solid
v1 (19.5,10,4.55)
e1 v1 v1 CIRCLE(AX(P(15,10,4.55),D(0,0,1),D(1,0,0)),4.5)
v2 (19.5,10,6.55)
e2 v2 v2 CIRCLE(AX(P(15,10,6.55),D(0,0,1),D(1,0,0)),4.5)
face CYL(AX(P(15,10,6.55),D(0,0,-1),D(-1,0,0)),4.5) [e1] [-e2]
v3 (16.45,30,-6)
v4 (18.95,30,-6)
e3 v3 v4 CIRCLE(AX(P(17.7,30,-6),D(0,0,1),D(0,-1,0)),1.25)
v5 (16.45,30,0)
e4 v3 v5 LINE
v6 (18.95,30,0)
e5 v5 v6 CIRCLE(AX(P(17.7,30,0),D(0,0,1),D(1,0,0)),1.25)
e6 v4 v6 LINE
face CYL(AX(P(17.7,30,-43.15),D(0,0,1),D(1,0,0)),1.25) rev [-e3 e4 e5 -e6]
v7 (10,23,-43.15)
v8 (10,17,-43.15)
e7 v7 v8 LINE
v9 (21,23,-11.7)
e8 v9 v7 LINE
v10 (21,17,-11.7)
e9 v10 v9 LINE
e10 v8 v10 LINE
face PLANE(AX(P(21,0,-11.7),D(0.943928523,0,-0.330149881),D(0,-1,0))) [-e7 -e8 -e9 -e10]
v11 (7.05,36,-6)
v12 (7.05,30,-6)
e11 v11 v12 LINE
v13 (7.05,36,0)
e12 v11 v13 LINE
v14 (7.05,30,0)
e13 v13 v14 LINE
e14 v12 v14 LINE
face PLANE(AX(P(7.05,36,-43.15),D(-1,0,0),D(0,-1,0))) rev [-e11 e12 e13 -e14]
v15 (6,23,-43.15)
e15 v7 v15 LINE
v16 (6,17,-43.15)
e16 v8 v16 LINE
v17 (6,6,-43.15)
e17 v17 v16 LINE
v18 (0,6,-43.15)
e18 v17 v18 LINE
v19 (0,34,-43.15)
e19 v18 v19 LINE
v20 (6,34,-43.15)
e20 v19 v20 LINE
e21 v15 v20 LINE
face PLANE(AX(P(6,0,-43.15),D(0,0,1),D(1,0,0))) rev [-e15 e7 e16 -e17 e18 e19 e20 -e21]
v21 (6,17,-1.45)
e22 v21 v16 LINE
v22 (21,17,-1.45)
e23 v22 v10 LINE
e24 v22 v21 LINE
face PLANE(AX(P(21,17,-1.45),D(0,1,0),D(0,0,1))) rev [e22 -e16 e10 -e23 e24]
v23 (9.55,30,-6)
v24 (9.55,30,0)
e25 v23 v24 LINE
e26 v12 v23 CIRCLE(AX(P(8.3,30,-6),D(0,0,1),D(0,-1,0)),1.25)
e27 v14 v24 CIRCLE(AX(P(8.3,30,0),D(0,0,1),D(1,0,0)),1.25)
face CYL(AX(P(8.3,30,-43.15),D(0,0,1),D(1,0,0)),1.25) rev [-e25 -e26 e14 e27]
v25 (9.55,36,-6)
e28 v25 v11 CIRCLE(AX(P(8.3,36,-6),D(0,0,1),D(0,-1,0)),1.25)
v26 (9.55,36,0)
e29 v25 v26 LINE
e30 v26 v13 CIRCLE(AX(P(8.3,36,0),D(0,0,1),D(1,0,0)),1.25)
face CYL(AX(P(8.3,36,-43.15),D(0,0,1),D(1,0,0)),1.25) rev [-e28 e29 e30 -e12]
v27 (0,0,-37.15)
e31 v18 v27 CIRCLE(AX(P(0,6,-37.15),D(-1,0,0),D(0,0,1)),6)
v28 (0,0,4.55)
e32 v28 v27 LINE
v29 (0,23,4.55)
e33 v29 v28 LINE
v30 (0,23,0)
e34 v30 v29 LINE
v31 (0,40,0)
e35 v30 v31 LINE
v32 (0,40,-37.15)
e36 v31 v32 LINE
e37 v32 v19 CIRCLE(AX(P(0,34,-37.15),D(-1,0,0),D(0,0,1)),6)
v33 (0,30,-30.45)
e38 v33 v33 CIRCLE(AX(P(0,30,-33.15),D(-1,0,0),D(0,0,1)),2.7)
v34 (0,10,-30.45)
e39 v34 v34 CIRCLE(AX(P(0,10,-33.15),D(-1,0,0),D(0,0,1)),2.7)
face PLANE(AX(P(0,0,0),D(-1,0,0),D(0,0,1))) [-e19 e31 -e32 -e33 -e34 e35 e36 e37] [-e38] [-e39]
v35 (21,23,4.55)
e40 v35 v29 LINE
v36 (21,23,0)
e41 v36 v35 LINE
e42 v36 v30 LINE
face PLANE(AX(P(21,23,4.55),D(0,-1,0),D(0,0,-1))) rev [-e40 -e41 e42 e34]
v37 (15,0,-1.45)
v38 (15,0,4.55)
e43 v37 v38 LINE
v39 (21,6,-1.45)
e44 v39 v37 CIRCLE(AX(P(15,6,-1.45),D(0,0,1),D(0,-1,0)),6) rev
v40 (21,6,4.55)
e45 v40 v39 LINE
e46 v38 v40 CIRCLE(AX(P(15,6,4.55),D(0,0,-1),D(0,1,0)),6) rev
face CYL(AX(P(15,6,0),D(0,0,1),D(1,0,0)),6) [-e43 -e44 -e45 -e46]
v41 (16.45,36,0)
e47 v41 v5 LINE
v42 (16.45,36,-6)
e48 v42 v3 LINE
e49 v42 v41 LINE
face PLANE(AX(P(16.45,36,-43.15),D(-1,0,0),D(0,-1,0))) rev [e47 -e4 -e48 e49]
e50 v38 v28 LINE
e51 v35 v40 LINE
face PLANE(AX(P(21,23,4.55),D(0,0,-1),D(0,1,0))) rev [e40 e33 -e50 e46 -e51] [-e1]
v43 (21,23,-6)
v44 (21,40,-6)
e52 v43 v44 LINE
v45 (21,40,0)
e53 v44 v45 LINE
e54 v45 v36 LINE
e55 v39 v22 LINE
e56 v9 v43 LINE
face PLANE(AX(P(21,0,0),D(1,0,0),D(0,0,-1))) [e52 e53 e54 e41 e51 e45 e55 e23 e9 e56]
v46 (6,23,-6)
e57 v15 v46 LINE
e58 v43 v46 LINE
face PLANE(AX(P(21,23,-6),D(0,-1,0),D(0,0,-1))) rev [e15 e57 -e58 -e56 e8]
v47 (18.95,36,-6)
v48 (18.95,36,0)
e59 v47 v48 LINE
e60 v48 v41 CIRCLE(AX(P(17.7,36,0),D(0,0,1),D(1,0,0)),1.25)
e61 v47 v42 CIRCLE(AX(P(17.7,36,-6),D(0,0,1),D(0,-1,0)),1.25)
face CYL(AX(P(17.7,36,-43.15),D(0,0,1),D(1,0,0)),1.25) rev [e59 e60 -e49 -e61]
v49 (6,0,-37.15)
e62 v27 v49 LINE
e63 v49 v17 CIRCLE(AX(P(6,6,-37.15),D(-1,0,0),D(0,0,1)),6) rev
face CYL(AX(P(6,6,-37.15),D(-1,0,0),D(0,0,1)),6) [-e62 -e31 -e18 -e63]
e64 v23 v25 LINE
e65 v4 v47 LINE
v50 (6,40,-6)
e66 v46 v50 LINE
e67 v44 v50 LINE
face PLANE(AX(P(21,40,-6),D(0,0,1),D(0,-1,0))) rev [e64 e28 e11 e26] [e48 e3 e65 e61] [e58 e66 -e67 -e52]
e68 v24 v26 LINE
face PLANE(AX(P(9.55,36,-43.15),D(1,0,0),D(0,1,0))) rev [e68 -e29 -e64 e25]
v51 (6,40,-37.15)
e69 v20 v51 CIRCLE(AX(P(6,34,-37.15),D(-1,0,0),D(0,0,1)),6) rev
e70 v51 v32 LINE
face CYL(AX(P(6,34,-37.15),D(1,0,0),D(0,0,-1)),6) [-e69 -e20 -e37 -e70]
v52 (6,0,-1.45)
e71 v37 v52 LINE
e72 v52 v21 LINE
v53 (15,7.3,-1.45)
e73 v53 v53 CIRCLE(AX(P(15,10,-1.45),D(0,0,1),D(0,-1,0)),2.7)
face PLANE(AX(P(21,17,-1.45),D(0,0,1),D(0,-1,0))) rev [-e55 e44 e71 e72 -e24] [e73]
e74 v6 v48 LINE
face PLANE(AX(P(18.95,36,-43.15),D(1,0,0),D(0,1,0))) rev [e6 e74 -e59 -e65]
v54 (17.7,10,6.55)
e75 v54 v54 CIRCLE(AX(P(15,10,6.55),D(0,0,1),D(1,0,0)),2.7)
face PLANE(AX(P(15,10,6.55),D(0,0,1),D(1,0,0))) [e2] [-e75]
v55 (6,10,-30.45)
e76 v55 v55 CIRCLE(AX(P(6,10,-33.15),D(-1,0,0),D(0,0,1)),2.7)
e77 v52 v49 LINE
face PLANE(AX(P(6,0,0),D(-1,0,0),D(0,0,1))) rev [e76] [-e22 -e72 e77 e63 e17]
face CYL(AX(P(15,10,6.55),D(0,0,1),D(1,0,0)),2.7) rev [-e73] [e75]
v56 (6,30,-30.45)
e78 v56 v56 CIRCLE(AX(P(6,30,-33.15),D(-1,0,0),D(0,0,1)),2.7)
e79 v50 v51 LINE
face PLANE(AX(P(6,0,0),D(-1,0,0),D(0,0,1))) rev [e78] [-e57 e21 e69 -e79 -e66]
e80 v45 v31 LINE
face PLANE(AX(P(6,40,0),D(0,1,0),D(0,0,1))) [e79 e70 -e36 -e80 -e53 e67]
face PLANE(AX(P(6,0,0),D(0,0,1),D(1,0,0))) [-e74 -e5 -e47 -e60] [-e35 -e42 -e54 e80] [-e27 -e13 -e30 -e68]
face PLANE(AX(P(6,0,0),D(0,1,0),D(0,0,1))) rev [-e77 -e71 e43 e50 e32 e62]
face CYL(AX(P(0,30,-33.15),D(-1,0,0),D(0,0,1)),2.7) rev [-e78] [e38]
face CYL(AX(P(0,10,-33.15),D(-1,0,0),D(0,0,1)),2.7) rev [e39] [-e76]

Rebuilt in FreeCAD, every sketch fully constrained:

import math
import FreeCAD as App
import Part
import Sketcher


def edges_at(feature, points):
    """Names of the edges that pass closest to the given points."""
    edges = feature.Shape.Edges
    near = lambda p: min(range(len(edges)), key=lambda i: edges[i].distToShape(Part.Vertex(*p))[0])
    return sorted({f"Edge{near(p) + 1}" for p in points})


def add_polygon(sketch, points):
    """Adds a closed chain of lines whose ends are joined by coincident constraints."""
    first, n = sketch.GeometryCount, len(points)
    for a, b in zip(points, points[1:] + points[:1]):
        sketch.addGeometry(Part.LineSegment(App.Vector(*a, 0), App.Vector(*b, 0)), False)
    for i in range(n):
        sketch.addConstraint(Sketcher.Constraint("Coincident", first + i, 2, first + (i + 1) % n, 1))

doc = App.newDocument("Part")
body = doc.addObject("PartDesign::Body", "Body")

# Sketch on YZ plane
sketch1 = body.newObject("Sketcher::SketchObject", "Sketch")
sketch1.AttachmentSupport = (doc.getObject("YZ_Plane"), [""])
sketch1.MapMode = "FlatFace"
add_polygon(sketch1, [(40, 0), (0, 0), (0, -43), (40, -43)])  # lines 0-3
sketch1.addConstraint(Sketcher.Constraint("Horizontal", 0))
sketch1.addConstraint(Sketcher.Constraint("Vertical", 1))
sketch1.addConstraint(Sketcher.Constraint("Horizontal", 2))
sketch1.addConstraint(Sketcher.Constraint("Vertical", 3))
sketch1.addConstraint(Sketcher.Constraint("Coincident", 0, 2, -1, 1))
sketch1.addConstraint(Sketcher.Constraint("DistanceX", 0, 2, 0, 1, 40.0))
sketch1.addConstraint(Sketcher.Constraint("DistanceY", 1, 2, 1, 1, 43.15))
pad1 = body.newObject("PartDesign::Pad", "Pad")
pad1.Profile = sketch1
pad1.Length = 6

# Sketch on YZ plane
sketch2 = body.newObject("Sketcher::SketchObject", "Sketch001")
sketch2.AttachmentSupport = (doc.getObject("YZ_Plane"), [""])
sketch2.MapMode = "FlatFace"
add_polygon(sketch2, [(23, 0), (23, 4.5), (0, 4.5), (0, -1.4), (17, -1.4), (17, -43.1), (23, -43.1), (23, -6), (40, -6), (40, 0)])  # lines 0-9
sketch2.addConstraint(Sketcher.Constraint("Vertical", 0))
sketch2.addConstraint(Sketcher.Constraint("Horizontal", 1))
sketch2.addConstraint(Sketcher.Constraint("Vertical", 2))
sketch2.addConstraint(Sketcher.Constraint("Horizontal", 3))
sketch2.addConstraint(Sketcher.Constraint("Vertical", 4))
sketch2.addConstraint(Sketcher.Constraint("Horizontal", 5))
sketch2.addConstraint(Sketcher.Constraint("Vertical", 6))
sketch2.addConstraint(Sketcher.Constraint("Horizontal", 7))
sketch2.addConstraint(Sketcher.Constraint("Vertical", 8))
sketch2.addConstraint(Sketcher.Constraint("Horizontal", 9))
sketch2.addConstraint(Sketcher.Constraint("PointOnObject", 1, 2, -2))
sketch2.addConstraint(Sketcher.Constraint("PointOnObject", 8, 2, -1))
sketch2.addConstraint(Sketcher.Constraint("Vertical", 0, 2, 5, 2))
sketch2.addConstraint(Sketcher.Constraint("Equal", 3, 7))
sketch2.addConstraint(Sketcher.Constraint("Equal", 5, 2))
sketch2.addConstraint(Sketcher.Constraint("Equal", 2, 8))
sketch2.addConstraint(Sketcher.Constraint("DistanceX", 1, 2, 1, 1, 23.0))
sketch2.addConstraint(Sketcher.Constraint("DistanceX", 3, 1, 3, 2, 17.0))
sketch2.addConstraint(Sketcher.Constraint("DistanceY", 4, 2, 4, 1, 41.7))
sketch2.addConstraint(Sketcher.Constraint("DistanceY", 0, 1, 0, 2, 4.55))
pad2 = body.newObject("PartDesign::Pad", "Pad001")
pad2.Profile = sketch2
pad2.Length = 21
doc.recompute()

chamfer = body.newObject("PartDesign::Chamfer", "Chamfer")
chamfer.Base = (pad2, edges_at(pad2, [(21, 20, -43.15)]))
chamfer.ChamferType = "Two distances"
chamfer.Size = 11
chamfer.Size2 = 31.45
chamfer.FlipDirection = True

# Sketch on YZ plane
sketch3 = body.newObject("Sketcher::SketchObject", "Sketch002")
sketch3.AttachmentSupport = (doc.getObject("YZ_Plane"), [""])
sketch3.MapMode = "FlatFace"
sketch3.addGeometry(Part.Circle(App.Vector(30, -33.1, 0), App.Vector(0, 0, 1), 2.7), False)
sketch3.addGeometry(Part.Circle(App.Vector(10, -33.1, 0), App.Vector(0, 0, 1), 2.7), False)
sketch3.addConstraint(Sketcher.Constraint("Equal", 0, 1))
sketch3.addConstraint(Sketcher.Constraint("Horizontal", 0, 3, 1, 3))
sketch3.addConstraint(Sketcher.Constraint("Diameter", 0, 5.4))
sketch3.addConstraint(Sketcher.Constraint("DistanceX", -1, 1, 0, 3, 30.0))
sketch3.addConstraint(Sketcher.Constraint("DistanceX", -1, 1, 1, 3, 10.0))
sketch3.addConstraint(Sketcher.Constraint("DistanceY", 0, 3, -1, 1, 33.15))
doc.recompute()
hole = body.newObject("PartDesign::Hole", "Hole")
hole.Profile = sketch3
hole.ThreadType = "None"
hole.Diameter = 5.4
hole.DepthType = "ThroughAll"
hole.Reversed = True

# Sketch on XY plane
sketch4 = body.newObject("Sketcher::SketchObject", "Sketch003")
sketch4.AttachmentSupport = (doc.getObject("XY_Plane"), [""])
sketch4.MapMode = "FlatFace"
sketch4.AttachmentOffset = App.Placement(App.Vector(0, 0, 4.55), App.Rotation())
sketch4.addGeometry(Part.Circle(App.Vector(15, 10, 0), App.Vector(0, 0, 1), 4.5), False)
sketch4.addConstraint(Sketcher.Constraint("Diameter", 0, 9.0))
sketch4.addConstraint(Sketcher.Constraint("DistanceX", -1, 1, 0, 3, 15.0))
sketch4.addConstraint(Sketcher.Constraint("DistanceY", -1, 1, 0, 3, 10.0))
pad3 = body.newObject("PartDesign::Pad", "Pad002")
pad3.Profile = sketch4
pad3.Length = 2

# Sketch on XY plane
sketch5 = body.newObject("Sketcher::SketchObject", "Sketch004")
sketch5.AttachmentSupport = (doc.getObject("XY_Plane"), [""])
sketch5.MapMode = "FlatFace"
sketch5.AttachmentOffset = App.Placement(App.Vector(0, 0, 6.55), App.Rotation())
sketch5.addGeometry(Part.Circle(App.Vector(15, 10, 0), App.Vector(0, 0, 1), 2.7), False)
sketch5.addConstraint(Sketcher.Constraint("Diameter", 0, 5.4))
sketch5.addConstraint(Sketcher.Constraint("DistanceX", -1, 1, 0, 3, 15.0))
sketch5.addConstraint(Sketcher.Constraint("DistanceY", -1, 1, 0, 3, 10.0))
doc.recompute()
hole2 = body.newObject("PartDesign::Hole", "Hole001")
hole2.Profile = sketch5
hole2.ThreadType = "None"
hole2.Diameter = 5.4
hole2.DepthType = "ThroughAll"

# Sketch on XY plane
sketch6 = body.newObject("Sketcher::SketchObject", "Sketch005")
sketch6.AttachmentSupport = (doc.getObject("XY_Plane"), [""])
sketch6.MapMode = "FlatFace"
sketch6.addGeometry(Part.LineSegment(App.Vector(18.9, 30, 0), App.Vector(18.9, 36, 0)), False)
sketch6.addGeometry(Part.ArcOfCircle(Part.Circle(App.Vector(17.7, 36, 0), App.Vector(0, 0, 1), 1.2), math.radians(0), math.radians(180)), False)
sketch6.addGeometry(Part.LineSegment(App.Vector(16.4, 36, 0), App.Vector(16.4, 30, 0)), False)
sketch6.addGeometry(Part.ArcOfCircle(Part.Circle(App.Vector(17.7, 30, 0), App.Vector(0, 0, 1), 1.2), math.radians(180), math.radians(360)), False)
sketch6.addGeometry(Part.LineSegment(App.Vector(9.6, 30, 0), App.Vector(9.6, 36, 0)), False)
sketch6.addGeometry(Part.ArcOfCircle(Part.Circle(App.Vector(8.3, 36, 0), App.Vector(0, 0, 1), 1.2), math.radians(0), math.radians(180)), False)
sketch6.addGeometry(Part.LineSegment(App.Vector(7, 36, 0), App.Vector(7, 30, 0)), False)
sketch6.addGeometry(Part.ArcOfCircle(Part.Circle(App.Vector(8.3, 30, 0), App.Vector(0, 0, 1), 1.2), math.radians(180), math.radians(360)), False)
sketch6.addConstraint(Sketcher.Constraint("Tangent", 0, 2, 1, 1))
sketch6.addConstraint(Sketcher.Constraint("Tangent", 1, 2, 2, 1))
sketch6.addConstraint(Sketcher.Constraint("Tangent", 2, 2, 3, 1))
sketch6.addConstraint(Sketcher.Constraint("Tangent", 3, 2, 0, 1))
sketch6.addConstraint(Sketcher.Constraint("Tangent", 4, 2, 5, 1))
sketch6.addConstraint(Sketcher.Constraint("Tangent", 5, 2, 6, 1))
sketch6.addConstraint(Sketcher.Constraint("Tangent", 6, 2, 7, 1))
sketch6.addConstraint(Sketcher.Constraint("Tangent", 7, 2, 4, 1))
sketch6.addConstraint(Sketcher.Constraint("Vertical", 0))
sketch6.addConstraint(Sketcher.Constraint("Vertical", 2))
sketch6.addConstraint(Sketcher.Constraint("Vertical", 4))
sketch6.addConstraint(Sketcher.Constraint("Vertical", 6))
sketch6.addConstraint(Sketcher.Constraint("Equal", 3, 5))
sketch6.addConstraint(Sketcher.Constraint("Horizontal", 1, 3, 5, 3))
sketch6.addConstraint(Sketcher.Constraint("Horizontal", 3, 3, 7, 3))
sketch6.addConstraint(Sketcher.Constraint("DistanceY", 0, 1, 0, 2, 6.0))
sketch6.addConstraint(Sketcher.Constraint("Radius", 1, 1.25))
sketch6.addConstraint(Sketcher.Constraint("DistanceY", -1, 1, 1, 3, 36.0))
sketch6.addConstraint(Sketcher.Constraint("DistanceX", -1, 1, 1, 3, 17.7))
sketch6.addConstraint(Sketcher.Constraint("DistanceX", -1, 1, 5, 3, 8.3))
pocket1 = body.newObject("PartDesign::Pocket", "Pocket")
pocket1.Profile = sketch6
pocket1.Type = "ThroughAll"
doc.recompute()

fillet = body.newObject("PartDesign::Fillet", "Fillet")
fillet.Base = (pocket1, edges_at(pocket1, [(21, 0, 1.55)]))
fillet.Radius = 6
doc.recompute()

fillet2 = body.newObject("PartDesign::Fillet", "Fillet001")
fillet2.Base = (fillet, edges_at(fillet, [(3, 0, -43.15), (3, 40, -43.15)]))
fillet2.Radius = 6

doc.recompute()
